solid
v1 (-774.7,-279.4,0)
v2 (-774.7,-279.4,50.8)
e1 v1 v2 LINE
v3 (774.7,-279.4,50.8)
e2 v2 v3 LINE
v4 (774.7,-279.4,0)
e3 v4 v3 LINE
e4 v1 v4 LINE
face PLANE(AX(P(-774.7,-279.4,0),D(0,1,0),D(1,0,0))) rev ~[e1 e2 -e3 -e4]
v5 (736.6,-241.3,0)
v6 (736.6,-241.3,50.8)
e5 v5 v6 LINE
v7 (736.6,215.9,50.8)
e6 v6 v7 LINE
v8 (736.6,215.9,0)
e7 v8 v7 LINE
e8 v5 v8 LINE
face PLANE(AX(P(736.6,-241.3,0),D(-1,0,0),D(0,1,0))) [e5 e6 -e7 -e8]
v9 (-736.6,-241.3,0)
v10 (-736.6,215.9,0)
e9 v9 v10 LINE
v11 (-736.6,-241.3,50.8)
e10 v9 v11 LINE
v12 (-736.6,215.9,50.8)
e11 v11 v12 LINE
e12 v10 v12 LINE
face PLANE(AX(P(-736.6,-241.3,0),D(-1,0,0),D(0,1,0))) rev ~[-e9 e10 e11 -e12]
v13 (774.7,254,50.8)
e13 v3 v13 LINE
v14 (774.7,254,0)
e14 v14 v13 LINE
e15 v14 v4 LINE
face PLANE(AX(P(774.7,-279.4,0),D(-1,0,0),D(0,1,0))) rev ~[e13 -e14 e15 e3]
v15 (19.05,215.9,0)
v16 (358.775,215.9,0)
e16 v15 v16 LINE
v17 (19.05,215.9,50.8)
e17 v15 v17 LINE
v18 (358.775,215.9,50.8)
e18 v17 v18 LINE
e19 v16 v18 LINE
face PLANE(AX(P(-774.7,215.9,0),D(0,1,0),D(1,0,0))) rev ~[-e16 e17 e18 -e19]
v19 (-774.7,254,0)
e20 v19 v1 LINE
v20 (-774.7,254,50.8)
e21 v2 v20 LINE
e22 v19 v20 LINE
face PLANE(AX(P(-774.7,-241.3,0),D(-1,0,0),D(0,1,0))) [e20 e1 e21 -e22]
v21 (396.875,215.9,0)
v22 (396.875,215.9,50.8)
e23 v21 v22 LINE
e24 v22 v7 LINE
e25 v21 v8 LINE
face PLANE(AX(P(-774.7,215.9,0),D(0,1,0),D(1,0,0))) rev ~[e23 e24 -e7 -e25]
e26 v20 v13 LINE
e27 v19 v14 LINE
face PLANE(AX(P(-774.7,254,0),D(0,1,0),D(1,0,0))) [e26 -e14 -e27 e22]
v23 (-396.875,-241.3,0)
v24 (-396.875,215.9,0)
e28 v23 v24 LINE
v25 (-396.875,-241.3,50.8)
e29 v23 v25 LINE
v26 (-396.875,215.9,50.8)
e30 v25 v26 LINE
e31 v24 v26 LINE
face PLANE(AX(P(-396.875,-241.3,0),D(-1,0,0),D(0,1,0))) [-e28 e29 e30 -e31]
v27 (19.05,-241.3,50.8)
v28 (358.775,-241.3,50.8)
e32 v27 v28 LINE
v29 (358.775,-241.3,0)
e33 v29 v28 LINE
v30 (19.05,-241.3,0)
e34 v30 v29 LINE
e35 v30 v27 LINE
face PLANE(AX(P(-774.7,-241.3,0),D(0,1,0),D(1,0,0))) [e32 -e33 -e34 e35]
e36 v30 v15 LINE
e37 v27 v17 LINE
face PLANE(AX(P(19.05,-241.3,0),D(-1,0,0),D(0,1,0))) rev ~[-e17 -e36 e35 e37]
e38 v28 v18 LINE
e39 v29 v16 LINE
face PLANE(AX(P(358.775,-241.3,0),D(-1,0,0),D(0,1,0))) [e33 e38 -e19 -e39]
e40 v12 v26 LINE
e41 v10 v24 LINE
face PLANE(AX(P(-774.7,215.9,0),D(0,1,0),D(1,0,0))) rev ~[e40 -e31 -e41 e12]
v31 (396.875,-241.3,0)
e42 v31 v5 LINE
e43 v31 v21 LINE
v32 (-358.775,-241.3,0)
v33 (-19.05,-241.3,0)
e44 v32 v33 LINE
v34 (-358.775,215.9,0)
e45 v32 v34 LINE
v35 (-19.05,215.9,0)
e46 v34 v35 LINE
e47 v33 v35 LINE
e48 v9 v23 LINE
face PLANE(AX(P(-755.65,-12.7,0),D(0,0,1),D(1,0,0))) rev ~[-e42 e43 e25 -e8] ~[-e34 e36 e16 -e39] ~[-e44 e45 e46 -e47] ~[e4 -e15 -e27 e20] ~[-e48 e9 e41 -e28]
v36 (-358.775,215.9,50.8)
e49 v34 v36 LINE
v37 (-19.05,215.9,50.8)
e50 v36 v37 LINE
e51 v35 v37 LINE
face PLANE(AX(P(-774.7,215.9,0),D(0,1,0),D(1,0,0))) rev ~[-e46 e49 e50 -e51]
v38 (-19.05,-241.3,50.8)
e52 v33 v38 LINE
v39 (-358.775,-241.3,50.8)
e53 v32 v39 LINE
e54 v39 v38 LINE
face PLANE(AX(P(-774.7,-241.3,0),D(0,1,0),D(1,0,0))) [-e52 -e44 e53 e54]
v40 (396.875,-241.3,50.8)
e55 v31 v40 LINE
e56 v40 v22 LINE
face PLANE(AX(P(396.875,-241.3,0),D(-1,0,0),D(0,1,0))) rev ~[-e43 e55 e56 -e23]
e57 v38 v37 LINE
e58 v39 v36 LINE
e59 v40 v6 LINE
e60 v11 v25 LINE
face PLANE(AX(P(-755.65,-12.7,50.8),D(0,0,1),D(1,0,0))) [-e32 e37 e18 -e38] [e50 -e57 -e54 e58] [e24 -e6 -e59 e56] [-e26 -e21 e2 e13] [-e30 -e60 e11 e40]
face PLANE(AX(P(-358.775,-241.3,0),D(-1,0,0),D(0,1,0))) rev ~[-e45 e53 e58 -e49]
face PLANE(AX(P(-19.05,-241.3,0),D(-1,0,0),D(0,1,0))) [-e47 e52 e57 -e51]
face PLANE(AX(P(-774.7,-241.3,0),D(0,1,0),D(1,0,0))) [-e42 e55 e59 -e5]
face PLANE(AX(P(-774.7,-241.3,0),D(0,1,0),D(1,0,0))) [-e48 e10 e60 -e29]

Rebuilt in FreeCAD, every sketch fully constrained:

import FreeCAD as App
import Part
import Sketcher
Q = App.Units.Quantity


def add_polygon(sketch, points):
    """Adds a closed chain of lines whose ends are joined by coincident constraints."""
    first, n = sketch.GeometryCount, len(points)
    for a, b in zip(points, points[1:] + points[:1]):
        sketch.addGeometry(Part.LineSegment(App.Vector(*a, 0), App.Vector(*b, 0)), False)
    for i in range(n):
        sketch.addConstraint(Sketcher.Constraint("Coincident", first + i, 2, first + (i + 1) % n, 1))

doc = App.newDocument("Part")
body = doc.addObject("PartDesign::Body", "Body")
body.AllowCompound = True

sketch1 = body.newObject("Sketcher::SketchObject", "Sketch")
sketch1.AttachmentSupport = (doc.getObject("XY_Plane"), [""])
sketch1.MapMode = "FlatFace"
add_polygon(sketch1, [(-774.7, 254), (-774.7, 215.9), (774.7, 215.9), (774.7, 254)])
add_polygon(sketch1, [(-774.7, -241.3), (-774.7, -279.4), (774.7, -279.4), (774.7, -241.3)])
sketch1.addConstraint([
    Sketcher.Constraint("Vertical", 0),
    Sketcher.Constraint("Horizontal", 1),
    Sketcher.Constraint("Vertical", 2),
    Sketcher.Constraint("Horizontal", 3),
    Sketcher.Constraint("Vertical", 4),
    Sketcher.Constraint("Horizontal", 5),
    Sketcher.Constraint("Vertical", 6),
    Sketcher.Constraint("Horizontal", 7),
    Sketcher.Constraint("Vertical", 3, 2, 4, 2),
    Sketcher.Constraint("Vertical", 2, 2, 5, 2),
    Sketcher.Constraint("Equal", 2, 4),
    Sketcher.Constraint("DistanceX", 1, 1, 1, 2, Q("61 in")),
    Sketcher.Constraint("DistanceY", 0, 2, 0, 1, Q("1.5 in")),
    Sketcher.Constraint("DistanceY", -1, 1, 2, 2, Q("10 in")),
    Sketcher.Constraint("DistanceY", 4, 2, -1, 1, Q("11 in")),
    Sketcher.Constraint("DistanceX", 0, 2, -1, 1, Q("30.5 in")),
])
pad1 = body.newObject("PartDesign::Pad", "Pad")
pad1.Profile = sketch1
pad1.Length = Q("2 in")

sketch2 = body.newObject("Sketcher::SketchObject", "Sketch001")
sketch2.AttachmentSupport = (doc.getObject("XY_Plane"), [""])
sketch2.MapMode = "FlatFace"
add_polygon(sketch2, [(-774.7, 215.9), (-774.7, -241.3), (-736.6, -241.3), (-736.6, 215.9)])
add_polygon(sketch2, [(-396.875, 215.9), (-396.875, -241.3), (-358.775, -241.3), (-358.775, 215.9)])
add_polygon(sketch2, [(-19.05, 215.9), (-19.05, -241.3), (19.05, -241.3), (19.05, 215.9)])
add_polygon(sketch2, [(358.775, 215.9), (358.775, -241.3), (396.875, -241.3), (396.875, 215.9)])
add_polygon(sketch2, [(736.6, 215.9), (736.6, -241.3), (774.7, -241.3), (774.7, 215.9)])
sketch2.addConstraint([
    Sketcher.Constraint("Vertical", 0),
    Sketcher.Constraint("Horizontal", 1),
    Sketcher.Constraint("Vertical", 2),
    Sketcher.Constraint("Horizontal", 3),
    Sketcher.Constraint("Vertical", 4),
    Sketcher.Constraint("Horizontal", 5),
    Sketcher.Constraint("Vertical", 6),
    Sketcher.Constraint("Horizontal", 7),
    Sketcher.Constraint("Vertical", 8),
    Sketcher.Constraint("Horizontal", 9),
    Sketcher.Constraint("Vertical", 10),
    Sketcher.Constraint("Horizontal", 11),
    Sketcher.Constraint("Vertical", 12),
    Sketcher.Constraint("Horizontal", 13),
    Sketcher.Constraint("Vertical", 14),
    Sketcher.Constraint("Horizontal", 15),
    Sketcher.Constraint("Vertical", 16),
    Sketcher.Constraint("Horizontal", 17),
    Sketcher.Constraint("Vertical", 18),
    Sketcher.Constraint("Horizontal", 19),
    Sketcher.Constraint("Symmetric", 5, 2, 12, 2, -2),
    Sketcher.Constraint("Symmetric", 7, 2, 14, 2, -2),
    Sketcher.Constraint("Symmetric", 1, 2, 16, 2, -2),
    Sketcher.Constraint("Symmetric", 3, 2, 18, 2, -2),
    Sketcher.Constraint("Horizontal", 1, 2, 4, 2),
    Sketcher.Constraint("Horizontal", 3, 2, 6, 2),
    Sketcher.Constraint("Horizontal", 5, 2, 8, 2),
    Sketcher.Constraint("Horizontal", 7, 2, 10, 2),
    Sketcher.Constraint("Equal", 3, 5),
    Sketcher.Constraint("Equal", 7, 9),
    Sketcher.Constraint("DistanceY", 0, 2, 0, 1, Q("18 in")),
    Sketcher.Constraint("DistanceX", 1, 1, 1, 2, Q("1.5 in")),
    Sketcher.Constraint("DistanceX", 1, 2, -1, 1, Q("29 in")),
    Sketcher.Constraint("DistanceY", 0, 2, -1, 1, Q("9.5 in")),
    Sketcher.Constraint("DistanceX", 8, 2, -1, 1, Q("0.75 in")),
    Sketcher.Constraint("DistanceX", 5, 2, 12, 2, Q("28.25 in")),
])
pad2 = body.newObject("PartDesign::Pad", "Pad001")
pad2.Profile = sketch2
pad2.Length = Q("2 in")

doc.recompute()
